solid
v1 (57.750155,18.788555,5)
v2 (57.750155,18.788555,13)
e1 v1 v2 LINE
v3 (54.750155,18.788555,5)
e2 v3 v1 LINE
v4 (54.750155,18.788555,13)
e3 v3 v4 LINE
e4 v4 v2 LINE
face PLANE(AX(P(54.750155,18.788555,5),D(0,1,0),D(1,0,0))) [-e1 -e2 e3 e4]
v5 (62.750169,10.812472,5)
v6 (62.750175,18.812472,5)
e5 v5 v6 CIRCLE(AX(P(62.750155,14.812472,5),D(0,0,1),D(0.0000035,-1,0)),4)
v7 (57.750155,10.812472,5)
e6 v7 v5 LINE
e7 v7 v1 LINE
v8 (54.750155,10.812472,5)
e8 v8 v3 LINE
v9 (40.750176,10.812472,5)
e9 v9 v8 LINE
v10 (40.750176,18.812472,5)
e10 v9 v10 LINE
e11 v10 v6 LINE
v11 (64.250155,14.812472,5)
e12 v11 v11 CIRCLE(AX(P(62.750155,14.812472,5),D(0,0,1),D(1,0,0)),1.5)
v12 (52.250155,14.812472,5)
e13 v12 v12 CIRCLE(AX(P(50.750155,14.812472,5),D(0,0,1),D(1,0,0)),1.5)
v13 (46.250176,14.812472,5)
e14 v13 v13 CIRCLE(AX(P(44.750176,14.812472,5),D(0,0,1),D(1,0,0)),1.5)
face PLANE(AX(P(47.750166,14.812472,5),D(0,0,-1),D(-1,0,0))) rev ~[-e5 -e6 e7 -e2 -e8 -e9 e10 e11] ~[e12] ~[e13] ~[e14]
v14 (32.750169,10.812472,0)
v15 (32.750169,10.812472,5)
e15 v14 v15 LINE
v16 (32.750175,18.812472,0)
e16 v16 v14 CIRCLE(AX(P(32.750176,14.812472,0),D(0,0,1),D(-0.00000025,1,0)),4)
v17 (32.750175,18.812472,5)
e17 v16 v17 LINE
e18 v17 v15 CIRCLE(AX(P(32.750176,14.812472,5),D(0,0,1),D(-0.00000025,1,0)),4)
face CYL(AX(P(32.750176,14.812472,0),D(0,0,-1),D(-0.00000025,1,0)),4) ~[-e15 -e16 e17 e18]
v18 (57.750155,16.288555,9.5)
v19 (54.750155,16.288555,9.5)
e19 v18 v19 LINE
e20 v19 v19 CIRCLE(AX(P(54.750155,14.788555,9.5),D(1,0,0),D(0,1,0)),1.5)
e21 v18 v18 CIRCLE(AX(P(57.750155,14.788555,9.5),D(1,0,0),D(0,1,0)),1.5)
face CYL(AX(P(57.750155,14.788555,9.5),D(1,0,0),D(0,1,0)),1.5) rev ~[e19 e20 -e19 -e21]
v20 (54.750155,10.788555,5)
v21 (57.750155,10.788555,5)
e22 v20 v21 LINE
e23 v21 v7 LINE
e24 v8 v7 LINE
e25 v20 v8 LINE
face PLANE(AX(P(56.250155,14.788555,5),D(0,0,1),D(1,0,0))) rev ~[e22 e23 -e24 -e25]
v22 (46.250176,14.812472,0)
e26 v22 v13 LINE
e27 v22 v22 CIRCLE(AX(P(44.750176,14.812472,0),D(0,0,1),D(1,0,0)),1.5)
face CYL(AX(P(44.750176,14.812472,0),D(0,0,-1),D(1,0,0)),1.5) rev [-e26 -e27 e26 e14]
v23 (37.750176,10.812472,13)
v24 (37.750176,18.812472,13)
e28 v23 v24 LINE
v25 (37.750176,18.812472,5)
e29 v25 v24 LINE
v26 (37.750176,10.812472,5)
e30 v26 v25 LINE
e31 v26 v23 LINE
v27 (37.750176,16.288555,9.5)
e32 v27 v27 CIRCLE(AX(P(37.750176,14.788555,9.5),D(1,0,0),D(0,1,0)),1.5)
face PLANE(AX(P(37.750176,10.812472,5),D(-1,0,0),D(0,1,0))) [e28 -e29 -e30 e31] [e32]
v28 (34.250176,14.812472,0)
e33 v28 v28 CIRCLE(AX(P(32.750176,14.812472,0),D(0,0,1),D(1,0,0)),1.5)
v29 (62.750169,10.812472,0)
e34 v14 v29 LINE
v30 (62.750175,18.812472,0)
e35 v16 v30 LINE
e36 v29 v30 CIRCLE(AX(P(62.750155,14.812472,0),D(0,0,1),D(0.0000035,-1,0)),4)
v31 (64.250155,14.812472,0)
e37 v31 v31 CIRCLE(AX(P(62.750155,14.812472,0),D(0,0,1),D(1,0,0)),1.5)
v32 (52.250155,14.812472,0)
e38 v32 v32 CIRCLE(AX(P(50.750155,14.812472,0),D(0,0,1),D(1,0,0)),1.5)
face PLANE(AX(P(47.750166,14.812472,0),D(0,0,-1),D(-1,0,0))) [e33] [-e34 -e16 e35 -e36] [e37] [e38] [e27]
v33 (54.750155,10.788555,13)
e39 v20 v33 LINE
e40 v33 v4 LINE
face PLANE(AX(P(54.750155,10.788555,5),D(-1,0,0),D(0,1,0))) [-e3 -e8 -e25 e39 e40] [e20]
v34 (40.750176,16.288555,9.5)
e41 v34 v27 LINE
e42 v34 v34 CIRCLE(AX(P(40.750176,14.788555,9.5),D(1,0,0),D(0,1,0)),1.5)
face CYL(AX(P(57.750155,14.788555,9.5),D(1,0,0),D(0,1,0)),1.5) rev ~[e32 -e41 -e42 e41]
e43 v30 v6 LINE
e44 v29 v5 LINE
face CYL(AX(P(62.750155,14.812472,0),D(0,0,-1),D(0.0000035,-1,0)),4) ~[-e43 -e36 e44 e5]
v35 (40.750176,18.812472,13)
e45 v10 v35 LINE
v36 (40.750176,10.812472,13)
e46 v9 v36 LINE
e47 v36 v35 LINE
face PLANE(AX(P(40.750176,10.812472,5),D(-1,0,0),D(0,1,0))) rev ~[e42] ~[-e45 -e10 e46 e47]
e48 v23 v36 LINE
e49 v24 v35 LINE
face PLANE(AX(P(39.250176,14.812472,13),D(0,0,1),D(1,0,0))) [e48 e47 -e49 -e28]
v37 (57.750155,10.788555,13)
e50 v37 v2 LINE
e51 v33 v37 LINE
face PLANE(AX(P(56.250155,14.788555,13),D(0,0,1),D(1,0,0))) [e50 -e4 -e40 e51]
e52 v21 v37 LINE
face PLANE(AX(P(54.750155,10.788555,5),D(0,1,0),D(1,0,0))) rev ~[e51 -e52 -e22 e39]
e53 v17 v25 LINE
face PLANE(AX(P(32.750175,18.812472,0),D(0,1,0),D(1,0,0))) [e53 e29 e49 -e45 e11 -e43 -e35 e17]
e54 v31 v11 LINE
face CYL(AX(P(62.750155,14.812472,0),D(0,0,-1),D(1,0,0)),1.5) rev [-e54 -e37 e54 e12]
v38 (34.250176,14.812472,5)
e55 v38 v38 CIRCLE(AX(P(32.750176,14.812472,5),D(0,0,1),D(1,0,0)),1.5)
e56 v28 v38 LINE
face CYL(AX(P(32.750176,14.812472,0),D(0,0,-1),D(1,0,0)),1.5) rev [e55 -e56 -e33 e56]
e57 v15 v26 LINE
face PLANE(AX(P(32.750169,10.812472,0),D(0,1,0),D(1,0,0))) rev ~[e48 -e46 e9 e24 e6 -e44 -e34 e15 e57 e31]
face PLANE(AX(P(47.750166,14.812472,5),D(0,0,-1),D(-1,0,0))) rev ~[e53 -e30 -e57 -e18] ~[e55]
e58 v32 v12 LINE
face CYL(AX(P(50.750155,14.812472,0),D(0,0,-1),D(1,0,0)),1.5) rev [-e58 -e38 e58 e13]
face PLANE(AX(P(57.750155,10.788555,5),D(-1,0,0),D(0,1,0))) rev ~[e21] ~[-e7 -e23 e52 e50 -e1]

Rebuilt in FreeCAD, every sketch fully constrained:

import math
import FreeCAD as App
import Part
import Sketcher

V = App.Vector
Q = App.Units.Quantity

doc = App.newDocument("Part")
body = doc.addObject("PartDesign::Body", "Body")

sketch1 = doc.addObject("Sketcher::SketchObject", "Sketch")
body.addObject(sketch1)
sketch1.AttachmentSupport = (doc.XY_Plane, [""])
sketch1.MapMode = "FlatFace"
sketch1.addGeometry(Part.LineSegment(V(62.8, 18.8, 0), V(32.8, 18.8, 0)), False)
sketch1.addGeometry(Part.ArcOfCircle(Part.Circle(V(32.8, 14.8, 0), V(0, 0, 1), 4), math.radians(90), math.radians(270)), False)
sketch1.addGeometry(Part.LineSegment(V(32.8, 10.8, 0), V(62.8, 10.8, 0)), False)
sketch1.addGeometry(Part.ArcOfCircle(Part.Circle(V(62.8, 14.8, 0), V(0, 0, 1), 4), math.radians(-90), math.radians(90)), False)
sketch1.addGeometry(Part.Circle(V(62.8, 14.8, 0), V(0, 0, 1), 1.5), False)
sketch1.addGeometry(Part.Circle(V(50.8, 14.8, 0), V(0, 0, 1), 1.5), False)
sketch1.addGeometry(Part.Circle(V(44.8, 14.8, 0), V(0, 0, 1), 1.5), False)
sketch1.addGeometry(Part.Circle(V(32.8, 14.8, 0), V(0, 0, 1), 1.5), False)
sketch1.addConstraint(Sketcher.Constraint("Tangent", 0, 2, 1, 1))
sketch1.addConstraint(Sketcher.Constraint("Tangent", 1, 2, 2, 1))
sketch1.addConstraint(Sketcher.Constraint("Coincident", 2, 2, 3, 1))
sketch1.addConstraint(Sketcher.Constraint("Coincident", 3, 2, 0, 1))
sketch1.addConstraint(Sketcher.Constraint("Horizontal", 0))
sketch1.addConstraint(Sketcher.Constraint("Horizontal", 2))
sketch1.addConstraint(Sketcher.Constraint("Coincident", 4, 3, 3, 3))
sketch1.addConstraint(Sketcher.Constraint("Coincident", 7, 3, 1, 3))
sketch1.addConstraint(Sketcher.Constraint("Equal", 4, 5))
sketch1.addConstraint(Sketcher.Constraint("Equal", 5, 6))
sketch1.addConstraint(Sketcher.Constraint("Equal", 6, 7))
sketch1.addConstraint(Sketcher.Constraint("Horizontal", 4, 3, 5, 3))
sketch1.addConstraint(Sketcher.Constraint("Horizontal", 5, 3, 6, 3))
sketch1.addConstraint(Sketcher.Constraint("Equal", 0, 2))
sketch1.addConstraint(Sketcher.Constraint("Diameter", 4, Q("3 mm")))
sketch1.addConstraint(Sketcher.Constraint("Radius", 1, Q("4 mm")))
sketch1.addConstraint(Sketcher.Constraint("DistanceX", 0, 2, 0, 1, Q("30 mm")))
sketch1.addConstraint(Sketcher.Constraint("DistanceX", 5, 3, 3, 3, Q("12 mm")))
sketch1.addConstraint(Sketcher.Constraint("DistanceX", 1, 3, 6, 3, Q("12 mm")))
sketch1.addConstraint(Sketcher.Constraint("DistanceY", -1, 1, 0, 2, Q("18.812472 mm")))
sketch1.addConstraint(Sketcher.Constraint("DistanceX", -1, 1, 1, 2, Q("32.750169 mm")))
sketch1.addConstraint(Sketcher.Constraint("DistanceX", 1, 3, 3, 3, Q("29.999979 mm")))
pad1 = doc.addObject("PartDesign::Pad", "Pad")
body.addObject(pad1)
pad1.Profile = sketch1
pad1.Length = 5

sketch2 = doc.addObject("Sketcher::SketchObject", "Sketch001")
body.addObject(sketch2)
sketch2.AttachmentSupport = (doc.XY_Plane, [""])
sketch2.MapMode = "FlatFace"
sketch2.AttachmentOffset = App.Placement(V(0, 0, 5), App.Rotation())
sketch2.addGeometry(Part.LineSegment(V(37.8, 18.8, 0), V(37.8, 10.8, 0)), False)
sketch2.addGeometry(Part.LineSegment(V(37.8, 10.8, 0), V(40.8, 10.8, 0)), False)
sketch2.addGeometry(Part.LineSegment(V(40.8, 10.8, 0), V(40.8, 18.8, 0)), False)
sketch2.addGeometry(Part.LineSegment(V(40.8, 18.8, 0), V(37.8, 18.8, 0)), False)
sketch2.addGeometry(Part.LineSegment(V(54.8, 18.8, 0), V(54.8, 10.8, 0)), False)
sketch2.addGeometry(Part.LineSegment(V(54.8, 10.8, 0), V(57.8, 10.8, 0)), False)
sketch2.addGeometry(Part.LineSegment(V(57.8, 10.8, 0), V(57.8, 18.8, 0)), False)
sketch2.addGeometry(Part.LineSegment(V(57.8, 18.8, 0), V(54.8, 18.8, 0)), False)
sketch2.addConstraint(Sketcher.Constraint("Coincident", 0, 2, 1, 1))
sketch2.addConstraint(Sketcher.Constraint("Coincident", 1, 2, 2, 1))
sketch2.addConstraint(Sketcher.Constraint("Coincident", 2, 2, 3, 1))
sketch2.addConstraint(Sketcher.Constraint("Coincident", 3, 2, 0, 1))
sketch2.addConstraint(Sketcher.Constraint("Coincident", 4, 2, 5, 1))
sketch2.addConstraint(Sketcher.Constraint("Coincident", 5, 2, 6, 1))
sketch2.addConstraint(Sketcher.Constraint("Coincident", 6, 2, 7, 1))
sketch2.addConstraint(Sketcher.Constraint("Coincident", 7, 2, 4, 1))
sketch2.addConstraint(Sketcher.Constraint("Vertical", 0))
sketch2.addConstraint(Sketcher.Constraint("Horizontal", 1))
sketch2.addConstraint(Sketcher.Constraint("Vertical", 2))
sketch2.addConstraint(Sketcher.Constraint("Horizontal", 3))
sketch2.addConstraint(Sketcher.Constraint("Vertical", 4))
sketch2.addConstraint(Sketcher.Constraint("Horizontal", 5))
sketch2.addConstraint(Sketcher.Constraint("Vertical", 6))
sketch2.addConstraint(Sketcher.Constraint("Horizontal", 7))
sketch2.addConstraint(Sketcher.Constraint("Equal", 3, 5))
sketch2.addConstraint(Sketcher.Constraint("Equal", 2, 4))
sketch2.addConstraint(Sketcher.Constraint("DistanceX", 1, 1, 1, 2, Q("3 mm")))
sketch2.addConstraint(Sketcher.Constraint("DistanceY", 0, 2, 0, 1, Q("8 mm")))
sketch2.addConstraint(Sketcher.Constraint("DistanceY", -1, 1, 2, 2, Q("18.812472 mm")))
sketch2.addConstraint(Sketcher.Constraint("DistanceX", 1, 2, 4, 2, Q("13.999979 mm")))
sketch2.addConstraint(Sketcher.Constraint("DistanceX", -1, 1, 0, 2, Q("37.750176 mm")))
sketch2.addConstraint(Sketcher.Constraint("DistanceY", -1, 1, 4, 2, Q("10.788555 mm")))
pad2 = doc.addObject("PartDesign::Pad", "Pad001")
body.addObject(pad2)
pad2.Profile = sketch2
pad2.Length = 8

sketch3 = doc.addObject("Sketcher::SketchObject", "Sketch002")
body.addObject(sketch3)
sketch3.AttachmentSupport = (doc.YZ_Plane, [""])
sketch3.MapMode = "FlatFace"
sketch3.AttachmentOffset = App.Placement(V(0, 0, 57.750155), App.Rotation())
sketch3.addGeometry(Part.Circle(V(14.8, 9.5, 0), V(0, 0, 1), 1.5), False)
sketch3.addConstraint(Sketcher.Constraint("Diameter", 0, Q("3 mm")))
sketch3.addConstraint(Sketcher.Constraint("DistanceY", -1, 1, 0, 3, Q("9.5 mm")))
sketch3.addConstraint(Sketcher.Constraint("DistanceX", -1, 1, 0, 3, Q("14.788555 mm")))
pocket1 = doc.addObject("PartDesign::Pocket", "Pocket")
body.addObject(pocket1)
pocket1.Profile = sketch3
pocket1.Length = 23

doc.recompute()
